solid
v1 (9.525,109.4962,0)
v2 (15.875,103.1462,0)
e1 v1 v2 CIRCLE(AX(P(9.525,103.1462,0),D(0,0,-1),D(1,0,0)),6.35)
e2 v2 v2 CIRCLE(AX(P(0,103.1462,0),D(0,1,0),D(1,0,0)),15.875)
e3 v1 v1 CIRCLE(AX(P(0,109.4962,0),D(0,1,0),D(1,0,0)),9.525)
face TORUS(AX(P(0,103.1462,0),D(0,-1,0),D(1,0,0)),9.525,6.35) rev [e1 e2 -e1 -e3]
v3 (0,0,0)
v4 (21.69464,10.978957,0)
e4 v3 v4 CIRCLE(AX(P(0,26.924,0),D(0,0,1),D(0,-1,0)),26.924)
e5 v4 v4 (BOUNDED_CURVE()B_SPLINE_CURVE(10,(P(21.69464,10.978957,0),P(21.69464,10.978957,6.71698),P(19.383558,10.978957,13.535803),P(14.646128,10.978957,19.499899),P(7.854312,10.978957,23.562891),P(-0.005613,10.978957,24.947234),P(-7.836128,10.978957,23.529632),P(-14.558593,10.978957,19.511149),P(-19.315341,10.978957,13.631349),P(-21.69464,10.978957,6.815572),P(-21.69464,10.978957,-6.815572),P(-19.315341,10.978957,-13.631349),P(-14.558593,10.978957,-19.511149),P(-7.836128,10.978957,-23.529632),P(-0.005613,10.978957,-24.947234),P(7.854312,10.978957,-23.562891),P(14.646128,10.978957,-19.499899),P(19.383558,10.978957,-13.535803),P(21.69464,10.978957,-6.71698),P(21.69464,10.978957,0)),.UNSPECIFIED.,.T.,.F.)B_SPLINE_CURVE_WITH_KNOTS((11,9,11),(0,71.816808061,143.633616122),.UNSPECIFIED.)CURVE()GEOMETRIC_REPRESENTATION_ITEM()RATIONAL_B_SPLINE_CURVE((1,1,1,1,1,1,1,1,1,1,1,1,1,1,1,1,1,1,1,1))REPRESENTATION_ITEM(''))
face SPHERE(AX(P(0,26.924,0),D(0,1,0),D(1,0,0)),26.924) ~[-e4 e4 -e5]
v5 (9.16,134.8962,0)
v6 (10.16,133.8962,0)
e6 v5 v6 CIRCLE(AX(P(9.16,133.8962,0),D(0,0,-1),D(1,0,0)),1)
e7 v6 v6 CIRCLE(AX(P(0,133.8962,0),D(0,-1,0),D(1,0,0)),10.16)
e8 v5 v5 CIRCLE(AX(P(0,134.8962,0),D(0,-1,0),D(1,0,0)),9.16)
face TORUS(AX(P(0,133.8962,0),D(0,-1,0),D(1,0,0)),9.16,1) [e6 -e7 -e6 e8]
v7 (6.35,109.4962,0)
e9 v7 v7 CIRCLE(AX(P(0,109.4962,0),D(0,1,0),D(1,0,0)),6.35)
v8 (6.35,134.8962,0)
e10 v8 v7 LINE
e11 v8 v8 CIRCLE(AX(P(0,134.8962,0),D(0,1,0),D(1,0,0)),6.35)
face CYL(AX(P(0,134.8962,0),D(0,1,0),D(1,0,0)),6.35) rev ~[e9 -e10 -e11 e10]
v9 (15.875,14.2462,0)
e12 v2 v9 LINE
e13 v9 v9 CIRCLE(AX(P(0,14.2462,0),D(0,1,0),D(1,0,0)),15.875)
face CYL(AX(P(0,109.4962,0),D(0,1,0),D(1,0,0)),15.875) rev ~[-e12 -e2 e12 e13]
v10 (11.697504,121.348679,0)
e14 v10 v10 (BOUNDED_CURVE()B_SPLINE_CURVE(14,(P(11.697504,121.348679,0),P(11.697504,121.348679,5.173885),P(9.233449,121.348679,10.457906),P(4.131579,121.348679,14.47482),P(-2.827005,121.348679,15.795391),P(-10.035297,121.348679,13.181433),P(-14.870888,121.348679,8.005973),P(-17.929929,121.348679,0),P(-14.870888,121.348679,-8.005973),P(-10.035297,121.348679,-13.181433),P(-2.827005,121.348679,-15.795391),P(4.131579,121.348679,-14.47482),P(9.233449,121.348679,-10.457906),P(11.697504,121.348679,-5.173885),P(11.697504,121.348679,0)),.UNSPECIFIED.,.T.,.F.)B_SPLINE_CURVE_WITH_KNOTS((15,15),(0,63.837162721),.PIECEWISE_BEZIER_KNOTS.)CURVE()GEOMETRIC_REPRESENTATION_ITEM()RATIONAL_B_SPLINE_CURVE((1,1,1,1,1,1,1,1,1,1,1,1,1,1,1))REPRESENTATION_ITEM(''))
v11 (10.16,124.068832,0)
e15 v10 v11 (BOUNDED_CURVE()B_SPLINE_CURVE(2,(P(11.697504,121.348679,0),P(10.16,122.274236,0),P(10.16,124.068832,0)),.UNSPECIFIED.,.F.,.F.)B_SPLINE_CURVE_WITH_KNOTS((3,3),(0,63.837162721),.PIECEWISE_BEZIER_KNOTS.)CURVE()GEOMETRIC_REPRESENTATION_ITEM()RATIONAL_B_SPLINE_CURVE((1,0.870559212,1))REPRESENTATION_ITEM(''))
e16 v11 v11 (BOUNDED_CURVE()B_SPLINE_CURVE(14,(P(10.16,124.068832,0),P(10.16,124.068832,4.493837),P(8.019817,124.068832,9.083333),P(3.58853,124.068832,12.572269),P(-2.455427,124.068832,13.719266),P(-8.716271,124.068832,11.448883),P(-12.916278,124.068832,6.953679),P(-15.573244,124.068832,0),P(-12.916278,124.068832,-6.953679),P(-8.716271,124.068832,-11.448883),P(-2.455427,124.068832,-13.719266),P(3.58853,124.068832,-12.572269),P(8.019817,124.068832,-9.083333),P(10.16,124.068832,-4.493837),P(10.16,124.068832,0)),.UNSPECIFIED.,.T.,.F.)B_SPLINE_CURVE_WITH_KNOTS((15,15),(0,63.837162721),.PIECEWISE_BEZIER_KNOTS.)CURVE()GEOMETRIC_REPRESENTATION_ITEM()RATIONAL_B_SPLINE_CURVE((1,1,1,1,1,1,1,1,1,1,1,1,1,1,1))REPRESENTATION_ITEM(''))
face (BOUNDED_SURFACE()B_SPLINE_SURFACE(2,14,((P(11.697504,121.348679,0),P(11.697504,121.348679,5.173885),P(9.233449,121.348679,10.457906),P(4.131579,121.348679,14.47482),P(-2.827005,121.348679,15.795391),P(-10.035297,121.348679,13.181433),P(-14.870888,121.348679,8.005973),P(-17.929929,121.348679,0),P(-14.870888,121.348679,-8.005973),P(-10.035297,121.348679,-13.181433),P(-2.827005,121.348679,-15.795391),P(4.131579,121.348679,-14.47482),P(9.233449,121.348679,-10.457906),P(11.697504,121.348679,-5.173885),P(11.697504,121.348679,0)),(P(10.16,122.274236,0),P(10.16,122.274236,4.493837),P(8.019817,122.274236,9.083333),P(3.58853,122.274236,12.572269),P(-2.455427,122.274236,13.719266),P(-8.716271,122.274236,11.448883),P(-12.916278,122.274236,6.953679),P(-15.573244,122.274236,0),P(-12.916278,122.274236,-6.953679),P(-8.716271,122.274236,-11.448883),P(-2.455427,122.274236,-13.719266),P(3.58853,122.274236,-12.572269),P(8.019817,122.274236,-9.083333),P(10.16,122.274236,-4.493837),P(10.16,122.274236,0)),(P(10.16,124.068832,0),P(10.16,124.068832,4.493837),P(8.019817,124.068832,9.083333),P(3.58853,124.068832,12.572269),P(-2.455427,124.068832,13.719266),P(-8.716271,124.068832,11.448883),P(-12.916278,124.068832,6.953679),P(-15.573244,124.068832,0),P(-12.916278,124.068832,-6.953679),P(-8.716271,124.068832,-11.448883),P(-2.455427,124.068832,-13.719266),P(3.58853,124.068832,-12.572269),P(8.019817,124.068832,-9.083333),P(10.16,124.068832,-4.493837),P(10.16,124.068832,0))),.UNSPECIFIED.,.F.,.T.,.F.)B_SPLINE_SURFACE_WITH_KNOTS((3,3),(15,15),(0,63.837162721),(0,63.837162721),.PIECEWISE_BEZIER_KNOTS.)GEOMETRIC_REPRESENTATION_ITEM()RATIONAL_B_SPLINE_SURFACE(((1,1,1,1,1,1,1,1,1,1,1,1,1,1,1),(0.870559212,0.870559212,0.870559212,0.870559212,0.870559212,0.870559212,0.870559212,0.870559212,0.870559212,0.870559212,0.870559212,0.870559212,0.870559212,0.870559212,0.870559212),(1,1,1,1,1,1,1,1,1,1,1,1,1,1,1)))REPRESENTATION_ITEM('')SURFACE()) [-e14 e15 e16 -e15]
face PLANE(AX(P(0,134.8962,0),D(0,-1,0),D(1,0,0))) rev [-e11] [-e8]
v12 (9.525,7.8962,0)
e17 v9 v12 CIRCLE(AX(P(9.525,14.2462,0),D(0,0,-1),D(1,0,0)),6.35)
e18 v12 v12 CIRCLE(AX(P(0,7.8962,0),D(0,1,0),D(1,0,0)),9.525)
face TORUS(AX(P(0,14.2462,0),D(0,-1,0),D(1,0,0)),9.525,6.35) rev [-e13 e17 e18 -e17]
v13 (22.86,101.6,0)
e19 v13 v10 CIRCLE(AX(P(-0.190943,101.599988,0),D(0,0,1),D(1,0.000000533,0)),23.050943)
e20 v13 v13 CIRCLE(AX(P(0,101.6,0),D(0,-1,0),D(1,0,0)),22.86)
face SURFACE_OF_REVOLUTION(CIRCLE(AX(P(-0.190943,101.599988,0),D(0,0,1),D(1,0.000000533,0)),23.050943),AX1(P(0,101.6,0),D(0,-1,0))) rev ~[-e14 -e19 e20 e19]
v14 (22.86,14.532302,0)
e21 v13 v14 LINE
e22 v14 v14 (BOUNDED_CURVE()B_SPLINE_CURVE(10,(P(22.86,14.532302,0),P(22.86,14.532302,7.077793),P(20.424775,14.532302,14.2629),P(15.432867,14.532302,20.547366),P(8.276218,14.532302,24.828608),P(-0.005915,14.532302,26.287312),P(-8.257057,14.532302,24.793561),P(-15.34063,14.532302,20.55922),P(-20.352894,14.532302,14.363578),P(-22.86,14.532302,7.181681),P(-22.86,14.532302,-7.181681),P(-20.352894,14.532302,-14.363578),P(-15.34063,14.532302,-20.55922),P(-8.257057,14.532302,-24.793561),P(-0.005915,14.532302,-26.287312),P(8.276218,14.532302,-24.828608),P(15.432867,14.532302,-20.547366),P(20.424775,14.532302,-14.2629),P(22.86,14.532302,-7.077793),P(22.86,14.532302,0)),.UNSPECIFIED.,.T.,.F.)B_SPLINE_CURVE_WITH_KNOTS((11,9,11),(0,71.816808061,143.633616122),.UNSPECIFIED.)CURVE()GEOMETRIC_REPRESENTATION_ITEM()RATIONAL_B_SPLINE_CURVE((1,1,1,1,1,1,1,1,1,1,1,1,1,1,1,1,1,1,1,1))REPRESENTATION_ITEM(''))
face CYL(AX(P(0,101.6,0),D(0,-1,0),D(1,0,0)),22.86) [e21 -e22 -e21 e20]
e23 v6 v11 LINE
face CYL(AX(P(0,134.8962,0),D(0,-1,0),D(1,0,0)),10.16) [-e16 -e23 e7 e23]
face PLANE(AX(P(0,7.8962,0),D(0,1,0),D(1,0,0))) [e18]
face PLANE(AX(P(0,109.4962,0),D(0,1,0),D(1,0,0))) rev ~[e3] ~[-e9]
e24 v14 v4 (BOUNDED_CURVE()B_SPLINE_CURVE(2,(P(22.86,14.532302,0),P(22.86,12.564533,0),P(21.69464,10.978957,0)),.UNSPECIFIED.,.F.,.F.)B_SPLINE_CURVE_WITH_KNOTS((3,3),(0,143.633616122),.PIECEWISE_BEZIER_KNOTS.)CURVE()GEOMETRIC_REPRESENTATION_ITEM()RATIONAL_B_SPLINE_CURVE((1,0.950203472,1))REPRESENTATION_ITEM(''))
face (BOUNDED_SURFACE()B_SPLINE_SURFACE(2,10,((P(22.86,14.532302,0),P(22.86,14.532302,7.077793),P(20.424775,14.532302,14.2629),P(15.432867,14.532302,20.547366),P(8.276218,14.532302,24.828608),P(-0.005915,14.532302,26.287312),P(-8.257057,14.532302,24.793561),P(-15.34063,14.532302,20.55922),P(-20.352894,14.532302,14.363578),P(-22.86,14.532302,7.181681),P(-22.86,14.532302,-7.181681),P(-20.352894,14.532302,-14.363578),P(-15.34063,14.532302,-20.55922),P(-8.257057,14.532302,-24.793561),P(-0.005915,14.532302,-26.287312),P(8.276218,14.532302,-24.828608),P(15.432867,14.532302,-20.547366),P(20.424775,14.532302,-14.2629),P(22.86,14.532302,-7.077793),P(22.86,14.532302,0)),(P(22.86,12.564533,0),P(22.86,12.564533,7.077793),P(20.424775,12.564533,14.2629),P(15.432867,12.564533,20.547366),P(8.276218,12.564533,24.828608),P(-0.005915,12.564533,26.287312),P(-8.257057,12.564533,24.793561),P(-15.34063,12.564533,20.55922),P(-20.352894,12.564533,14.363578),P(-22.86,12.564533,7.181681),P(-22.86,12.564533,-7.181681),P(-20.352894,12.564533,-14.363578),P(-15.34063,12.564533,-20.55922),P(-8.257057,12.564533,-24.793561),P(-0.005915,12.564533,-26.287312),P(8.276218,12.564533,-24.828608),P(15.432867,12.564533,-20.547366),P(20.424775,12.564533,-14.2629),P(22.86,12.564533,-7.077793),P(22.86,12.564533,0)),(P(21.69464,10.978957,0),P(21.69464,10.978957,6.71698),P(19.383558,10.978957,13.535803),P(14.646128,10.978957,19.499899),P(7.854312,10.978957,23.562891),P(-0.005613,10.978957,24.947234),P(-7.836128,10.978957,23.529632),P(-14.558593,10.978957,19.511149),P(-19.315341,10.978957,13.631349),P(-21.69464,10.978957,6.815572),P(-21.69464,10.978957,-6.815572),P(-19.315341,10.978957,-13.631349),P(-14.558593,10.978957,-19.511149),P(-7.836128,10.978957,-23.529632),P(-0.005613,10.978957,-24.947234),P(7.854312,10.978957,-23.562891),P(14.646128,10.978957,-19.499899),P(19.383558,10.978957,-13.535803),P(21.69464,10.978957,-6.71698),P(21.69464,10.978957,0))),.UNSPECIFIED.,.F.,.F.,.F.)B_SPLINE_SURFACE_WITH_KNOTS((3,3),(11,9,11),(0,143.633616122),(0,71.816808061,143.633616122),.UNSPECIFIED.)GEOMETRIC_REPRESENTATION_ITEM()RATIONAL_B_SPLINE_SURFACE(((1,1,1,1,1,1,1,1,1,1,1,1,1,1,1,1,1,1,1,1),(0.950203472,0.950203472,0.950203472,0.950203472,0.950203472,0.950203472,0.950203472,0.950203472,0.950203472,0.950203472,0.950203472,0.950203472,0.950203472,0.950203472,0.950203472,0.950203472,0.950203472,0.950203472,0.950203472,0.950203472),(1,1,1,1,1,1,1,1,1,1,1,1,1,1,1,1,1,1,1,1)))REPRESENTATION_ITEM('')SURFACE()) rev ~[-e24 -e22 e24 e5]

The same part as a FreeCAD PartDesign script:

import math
import FreeCAD as App
import Part
import Sketcher
Q = App.Units.Quantity


def edges_at(feature, points):
    """Names of the edges that pass closest to the given points."""
    edges = feature.Shape.Edges
    near = lambda p: min(range(len(edges)), key=lambda i: edges[i].distToShape(Part.Vertex(*p))[0])
    return sorted({f"Edge{near(p) + 1}" for p in points})

doc = App.newDocument("Part")
body = doc.addObject("PartDesign::Body", "Body")

sketch1 = body.newObject("Sketcher::SketchObject", "Sketch")
sketch1.AttachmentSupport = (doc.getObject("XY_Plane"), [""])
sketch1.MapMode = "FlatFace"
sketch1.addGeometry(Part.LineSegment(App.Vector(23, 13, 0), App.Vector(23, 102, 0)), False)
sketch1.addGeometry(Part.ArcOfCircle(Part.Circle(App.Vector(0, 102, 0), App.Vector(0, 0, 1), 23), math.radians(0), math.radians(63)), False)
sketch1.addGeometry(Part.LineSegment(App.Vector(10, 122, 0), App.Vector(10, 135, 0)), False)
sketch1.addGeometry(Part.LineSegment(App.Vector(10, 135, 0), App.Vector(0, 135, 0)), False)
sketch1.addGeometry(Part.LineSegment(App.Vector(0, 135, 0), App.Vector(0, 0, 0)), False)
sketch1.addGeometry(Part.ArcOfCircle(Part.Circle(App.Vector(0, 27, 0), App.Vector(0, 0, 1), 27), math.radians(-90), math.radians(-32)), False)
sketch1.addConstraint(Sketcher.Constraint("Tangent", 0, 2, 1, 1))
sketch1.addConstraint(Sketcher.Constraint("Coincident", 1, 2, 2, 1))
sketch1.addConstraint(Sketcher.Constraint("Coincident", 2, 2, 3, 1))
sketch1.addConstraint(Sketcher.Constraint("Coincident", 3, 2, 4, 1))
sketch1.addConstraint(Sketcher.Constraint("Coincident", 4, 2, 5, 1))
sketch1.addConstraint(Sketcher.Constraint("Coincident", 5, 2, 0, 1))
sketch1.addConstraint(Sketcher.Constraint("Vertical", 0))
sketch1.addConstraint(Sketcher.Constraint("Vertical", 2))
sketch1.addConstraint(Sketcher.Constraint("Horizontal", 3))
sketch1.addConstraint(Sketcher.Constraint("Vertical", 4))
sketch1.addConstraint(Sketcher.Constraint("Coincident", 4, 2, -1, 1))
sketch1.addConstraint(Sketcher.Constraint("PointOnObject", 5, 3, -2))
sketch1.addConstraint(Sketcher.Constraint("DistanceX", 3, 2, 3, 1, Q("0.4 in")))
sketch1.addConstraint(Sketcher.Constraint("DistanceY", 0, 1, 0, 2, Q("3.5 in")))
sketch1.addConstraint(Sketcher.Constraint("DistanceY", 2, 1, 2, 2, Q("0.5 in")))
sketch1.addConstraint(Sketcher.Constraint("DistanceX", -1, 1, 0, 2, Q("0.9 in")))
sketch1.addConstraint(Sketcher.Constraint("DistanceY", -1, 1, 5, 2, Q("0.5 in")))
sketch1.addConstraint(Sketcher.Constraint("Radius", 1, 23.051))
revolution = body.newObject("PartDesign::Revolution", "Revolution")
revolution.Profile = sketch1
revolution.ReferenceAxis = (sketch1, ["V_Axis"])
revolution.Angle = 360
doc.recompute()

fillet = body.newObject("PartDesign::Fillet", "Fillet")
fillet.Base = (revolution, edges_at(revolution, [(-22.86, 12.7, 0)]))
fillet.Radius = 6
doc.recompute()

fillet2 = body.newObject("PartDesign::Fillet", "Fillet001")
fillet2.Base = (fillet, edges_at(fillet, [(-10.16, 122.196, 0)]))
fillet2.Radius = Q("0.125 in")

sketch2 = body.newObject("Sketcher::SketchObject", "Sketch001")
sketch2.AttachmentSupport = (doc.getObject("XZ_Plane"), [""])
sketch2.MapMode = "FlatFace"
sketch2.AttachmentOffset = App.Placement(App.Vector(0, 0, -134.8962), App.Rotation())
sketch2.addGeometry(Part.Circle(App.Vector(0, 0, 0), App.Vector(0, 0, 1), 6), False)
sketch2.addConstraint(Sketcher.Constraint("Coincident", 0, 3, -1, 1))
sketch2.addConstraint(Sketcher.Constraint("Diameter", 0, Q("0.5 in")))
pocket1 = body.newObject("PartDesign::Pocket", "Pocket")
pocket1.Profile = sketch2
pocket1.Length = Q("1 in")
pocket1.Reversed = True

sketch3 = body.newObject("Sketcher::SketchObject", "Sketch002")
sketch3.AttachmentSupport = (doc.getObject("XZ_Plane"), [""])
sketch3.MapMode = "FlatFace"
sketch3.AttachmentOffset = App.Placement(App.Vector(0, 0, -109.4962), App.Rotation())
sketch3.addGeometry(Part.Circle(App.Vector(0, 0, 0), App.Vector(0, 0, 1), 16), False)
sketch3.addConstraint(Sketcher.Constraint("Coincident", 0, 3, -1, 1))
sketch3.addConstraint(Sketcher.Constraint("Diameter", 0, Q("1.25 in")))
pocket2 = body.newObject("PartDesign::Pocket", "Pocket001")
pocket2.Profile = sketch3
pocket2.Length = Q("4 in")
pocket2.Reversed = True
doc.recompute()

fillet3 = body.newObject("PartDesign::Fillet", "Fillet002")
fillet3.Base = (pocket2, edges_at(pocket2, [(-15.875, 109.496, 0), (-15.875, 7.896, 0)]))
fillet3.Radius = Q("0.25 in")
doc.recompute()

fillet4 = body.newObject("PartDesign::Fillet", "Fillet003")
fillet4.Base = (fillet3, edges_at(fillet3, [(-10.16, 134.896, 0)]))
fillet4.Radius = 1

doc.recompute()
